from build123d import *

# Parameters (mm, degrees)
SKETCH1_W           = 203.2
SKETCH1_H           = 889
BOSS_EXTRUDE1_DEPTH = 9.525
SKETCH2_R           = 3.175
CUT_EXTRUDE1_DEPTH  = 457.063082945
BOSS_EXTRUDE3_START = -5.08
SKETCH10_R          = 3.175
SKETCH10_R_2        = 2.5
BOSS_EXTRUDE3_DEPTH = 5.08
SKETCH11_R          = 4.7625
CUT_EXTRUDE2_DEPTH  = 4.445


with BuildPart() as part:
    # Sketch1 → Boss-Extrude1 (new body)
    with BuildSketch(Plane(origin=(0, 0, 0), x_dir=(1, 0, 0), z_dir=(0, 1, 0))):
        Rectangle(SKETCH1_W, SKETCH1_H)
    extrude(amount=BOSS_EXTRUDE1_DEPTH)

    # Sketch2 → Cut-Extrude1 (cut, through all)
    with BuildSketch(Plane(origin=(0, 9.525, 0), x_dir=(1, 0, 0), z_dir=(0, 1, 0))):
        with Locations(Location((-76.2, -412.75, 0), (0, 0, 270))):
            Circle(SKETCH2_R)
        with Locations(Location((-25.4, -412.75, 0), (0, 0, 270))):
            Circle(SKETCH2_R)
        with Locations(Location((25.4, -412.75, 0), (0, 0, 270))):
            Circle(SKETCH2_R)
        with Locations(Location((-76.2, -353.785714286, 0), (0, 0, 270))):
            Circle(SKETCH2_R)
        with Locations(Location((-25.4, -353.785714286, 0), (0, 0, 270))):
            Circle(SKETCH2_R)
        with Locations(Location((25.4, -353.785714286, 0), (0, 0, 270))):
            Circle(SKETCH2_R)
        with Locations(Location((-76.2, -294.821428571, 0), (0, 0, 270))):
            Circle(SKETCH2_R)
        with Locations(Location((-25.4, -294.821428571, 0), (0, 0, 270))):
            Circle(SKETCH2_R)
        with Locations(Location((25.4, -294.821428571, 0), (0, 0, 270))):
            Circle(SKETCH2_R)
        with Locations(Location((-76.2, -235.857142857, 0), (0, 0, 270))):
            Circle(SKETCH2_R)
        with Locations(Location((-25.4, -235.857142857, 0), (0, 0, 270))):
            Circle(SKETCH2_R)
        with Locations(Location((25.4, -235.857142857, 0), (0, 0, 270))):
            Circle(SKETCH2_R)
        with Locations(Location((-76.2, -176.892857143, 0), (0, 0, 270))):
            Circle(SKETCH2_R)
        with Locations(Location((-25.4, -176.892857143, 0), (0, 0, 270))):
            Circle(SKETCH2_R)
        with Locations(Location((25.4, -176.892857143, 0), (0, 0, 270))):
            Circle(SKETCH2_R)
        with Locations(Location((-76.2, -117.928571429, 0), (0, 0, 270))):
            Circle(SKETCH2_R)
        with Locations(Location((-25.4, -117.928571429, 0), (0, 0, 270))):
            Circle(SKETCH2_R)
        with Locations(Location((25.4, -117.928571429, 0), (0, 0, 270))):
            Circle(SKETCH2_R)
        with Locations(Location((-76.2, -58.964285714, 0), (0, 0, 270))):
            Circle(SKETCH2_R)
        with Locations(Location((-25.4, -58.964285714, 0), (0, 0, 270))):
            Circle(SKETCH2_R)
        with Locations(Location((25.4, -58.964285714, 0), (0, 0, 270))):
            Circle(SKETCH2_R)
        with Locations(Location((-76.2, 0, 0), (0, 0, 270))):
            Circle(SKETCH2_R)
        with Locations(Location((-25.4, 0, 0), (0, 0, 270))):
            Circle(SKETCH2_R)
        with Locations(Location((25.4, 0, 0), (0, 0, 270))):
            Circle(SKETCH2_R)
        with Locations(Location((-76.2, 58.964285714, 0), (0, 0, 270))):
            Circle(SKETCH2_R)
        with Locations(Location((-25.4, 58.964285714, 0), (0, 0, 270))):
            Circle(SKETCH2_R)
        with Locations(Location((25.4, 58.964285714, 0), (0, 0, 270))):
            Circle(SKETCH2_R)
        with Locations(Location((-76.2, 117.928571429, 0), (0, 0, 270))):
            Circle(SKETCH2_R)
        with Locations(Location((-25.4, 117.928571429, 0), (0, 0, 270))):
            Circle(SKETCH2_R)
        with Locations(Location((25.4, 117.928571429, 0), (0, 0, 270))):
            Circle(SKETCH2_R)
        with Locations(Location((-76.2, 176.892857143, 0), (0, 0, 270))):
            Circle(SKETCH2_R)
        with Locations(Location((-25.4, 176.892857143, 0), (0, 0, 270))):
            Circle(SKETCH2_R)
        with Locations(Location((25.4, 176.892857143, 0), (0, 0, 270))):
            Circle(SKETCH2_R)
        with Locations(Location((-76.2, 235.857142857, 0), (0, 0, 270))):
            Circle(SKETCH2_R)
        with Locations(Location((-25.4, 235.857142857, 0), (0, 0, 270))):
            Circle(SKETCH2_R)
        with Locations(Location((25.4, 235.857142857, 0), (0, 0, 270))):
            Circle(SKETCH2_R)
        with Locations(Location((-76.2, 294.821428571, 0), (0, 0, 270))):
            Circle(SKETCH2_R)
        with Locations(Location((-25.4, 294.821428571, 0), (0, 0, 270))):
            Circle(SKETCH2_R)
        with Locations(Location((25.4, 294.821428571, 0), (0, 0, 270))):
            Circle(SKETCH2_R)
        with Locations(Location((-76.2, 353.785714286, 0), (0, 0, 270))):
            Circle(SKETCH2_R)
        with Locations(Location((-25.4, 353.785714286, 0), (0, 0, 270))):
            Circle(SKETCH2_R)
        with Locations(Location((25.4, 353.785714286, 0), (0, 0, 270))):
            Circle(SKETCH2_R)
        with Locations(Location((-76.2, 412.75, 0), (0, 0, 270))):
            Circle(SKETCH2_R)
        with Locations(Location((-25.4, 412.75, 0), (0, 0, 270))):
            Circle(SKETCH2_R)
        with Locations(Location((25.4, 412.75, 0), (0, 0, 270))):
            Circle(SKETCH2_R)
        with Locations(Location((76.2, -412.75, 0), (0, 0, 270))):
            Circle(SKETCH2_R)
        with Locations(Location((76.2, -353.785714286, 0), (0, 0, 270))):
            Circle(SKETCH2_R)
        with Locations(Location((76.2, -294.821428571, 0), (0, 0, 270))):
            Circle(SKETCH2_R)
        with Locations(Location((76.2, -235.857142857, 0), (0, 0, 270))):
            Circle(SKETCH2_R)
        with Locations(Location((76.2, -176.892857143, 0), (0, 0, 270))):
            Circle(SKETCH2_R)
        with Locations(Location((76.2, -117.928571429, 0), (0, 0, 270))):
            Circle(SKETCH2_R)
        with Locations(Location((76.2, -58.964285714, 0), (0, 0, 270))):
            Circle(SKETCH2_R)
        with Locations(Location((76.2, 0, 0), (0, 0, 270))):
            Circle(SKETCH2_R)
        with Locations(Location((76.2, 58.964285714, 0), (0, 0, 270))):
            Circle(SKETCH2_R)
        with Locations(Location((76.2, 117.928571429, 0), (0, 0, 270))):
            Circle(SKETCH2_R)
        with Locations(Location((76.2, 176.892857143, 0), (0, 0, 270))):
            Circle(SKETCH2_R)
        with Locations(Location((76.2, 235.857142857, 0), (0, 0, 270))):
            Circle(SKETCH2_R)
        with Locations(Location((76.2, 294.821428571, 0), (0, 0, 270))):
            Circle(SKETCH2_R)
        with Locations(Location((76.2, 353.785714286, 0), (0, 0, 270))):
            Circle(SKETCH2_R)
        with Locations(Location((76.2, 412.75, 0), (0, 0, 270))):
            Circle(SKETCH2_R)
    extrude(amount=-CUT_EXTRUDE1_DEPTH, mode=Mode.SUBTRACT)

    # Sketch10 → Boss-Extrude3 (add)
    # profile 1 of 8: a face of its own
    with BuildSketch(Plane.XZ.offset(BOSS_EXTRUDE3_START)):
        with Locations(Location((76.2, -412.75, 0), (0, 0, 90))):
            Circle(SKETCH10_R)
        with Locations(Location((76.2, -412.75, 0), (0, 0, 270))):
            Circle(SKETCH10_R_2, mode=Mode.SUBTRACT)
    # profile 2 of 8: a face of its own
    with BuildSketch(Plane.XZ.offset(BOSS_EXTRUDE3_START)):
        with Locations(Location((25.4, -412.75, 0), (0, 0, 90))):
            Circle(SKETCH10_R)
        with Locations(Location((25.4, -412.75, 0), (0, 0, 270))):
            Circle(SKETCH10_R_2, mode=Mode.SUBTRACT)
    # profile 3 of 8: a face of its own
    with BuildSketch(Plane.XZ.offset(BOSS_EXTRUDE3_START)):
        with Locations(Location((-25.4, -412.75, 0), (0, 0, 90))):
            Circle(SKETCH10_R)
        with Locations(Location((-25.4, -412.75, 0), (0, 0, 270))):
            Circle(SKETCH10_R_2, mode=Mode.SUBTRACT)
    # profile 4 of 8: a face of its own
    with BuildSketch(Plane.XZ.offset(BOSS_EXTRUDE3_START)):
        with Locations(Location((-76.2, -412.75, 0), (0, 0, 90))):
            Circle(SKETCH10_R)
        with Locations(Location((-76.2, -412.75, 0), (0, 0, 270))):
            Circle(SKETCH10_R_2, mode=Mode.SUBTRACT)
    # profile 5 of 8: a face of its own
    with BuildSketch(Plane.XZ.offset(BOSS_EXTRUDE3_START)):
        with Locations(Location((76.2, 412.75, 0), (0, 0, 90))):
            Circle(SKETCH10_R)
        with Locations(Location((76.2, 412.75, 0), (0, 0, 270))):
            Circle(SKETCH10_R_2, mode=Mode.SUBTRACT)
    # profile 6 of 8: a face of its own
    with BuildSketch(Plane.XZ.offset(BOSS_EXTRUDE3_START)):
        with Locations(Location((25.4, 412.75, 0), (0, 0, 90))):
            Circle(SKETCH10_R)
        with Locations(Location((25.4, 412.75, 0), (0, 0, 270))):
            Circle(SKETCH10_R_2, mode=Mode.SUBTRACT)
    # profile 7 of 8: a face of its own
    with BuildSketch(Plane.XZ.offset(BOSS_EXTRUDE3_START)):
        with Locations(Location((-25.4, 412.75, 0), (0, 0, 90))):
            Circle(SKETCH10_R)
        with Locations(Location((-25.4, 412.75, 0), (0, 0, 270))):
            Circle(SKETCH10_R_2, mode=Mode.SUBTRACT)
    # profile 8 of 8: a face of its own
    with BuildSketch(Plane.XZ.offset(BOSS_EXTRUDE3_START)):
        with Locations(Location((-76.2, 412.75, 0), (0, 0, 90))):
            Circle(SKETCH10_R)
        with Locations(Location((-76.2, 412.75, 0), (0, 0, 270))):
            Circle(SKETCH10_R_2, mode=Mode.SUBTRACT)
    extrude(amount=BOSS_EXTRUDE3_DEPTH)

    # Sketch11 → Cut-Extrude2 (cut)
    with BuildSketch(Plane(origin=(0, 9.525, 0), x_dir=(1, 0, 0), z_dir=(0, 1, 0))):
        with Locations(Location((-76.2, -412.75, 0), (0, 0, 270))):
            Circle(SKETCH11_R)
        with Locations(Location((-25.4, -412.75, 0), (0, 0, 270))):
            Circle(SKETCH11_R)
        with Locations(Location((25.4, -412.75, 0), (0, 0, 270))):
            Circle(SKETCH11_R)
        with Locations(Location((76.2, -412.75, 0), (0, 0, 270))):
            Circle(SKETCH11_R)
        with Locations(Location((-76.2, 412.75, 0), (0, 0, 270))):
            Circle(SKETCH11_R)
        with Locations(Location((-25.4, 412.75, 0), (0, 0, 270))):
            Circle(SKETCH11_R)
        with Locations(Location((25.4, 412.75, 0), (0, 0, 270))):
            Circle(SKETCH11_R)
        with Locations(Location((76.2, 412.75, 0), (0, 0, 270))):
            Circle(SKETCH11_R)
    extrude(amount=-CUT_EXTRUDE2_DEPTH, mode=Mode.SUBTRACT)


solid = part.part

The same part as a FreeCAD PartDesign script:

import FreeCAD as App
import Part
import Sketcher
Q = App.Units.Quantity

doc = App.newDocument("Part")
params = doc.addObject("Spreadsheet::Sheet", "Params")
for row, (alias, value) in enumerate([
    ("sketch1_width", "8 in"),
    ("sketch1_height", "35 in"),
    ("pad1_length", "0.375 in"),
    ("sketch2_diameter", "0.25 in"),
    ("sketch3_diameter", "0.25 in"),
    ("pad2_length", "0.2 in"),
    ("sketch4_diameter", "0.375 in"),
    ("pocket2_length", "0.175 in"),
], start=1):
    params.set(f"A{row}", alias)
    params.set(f"B{row}", "=" + value)
    params.setAlias(f"B{row}", alias)

body = doc.addObject("PartDesign::Body", "Body")

# Sketch on XZ plane
sketch1 = body.newObject("Sketcher::SketchObject", "Sketch")
sketch1.AttachmentSupport = (doc.getObject("XZ_Plane"), [""])
sketch1.MapMode = "FlatFace"
sketch1.addGeometry([
    Part.LineSegment(App.Vector(-101.6, -444.5, 0), App.Vector(-101.6, 444.5, 0)),
    Part.LineSegment(App.Vector(-101.6, 444.5, 0), App.Vector(101.6, 444.5, 0)),
    Part.LineSegment(App.Vector(101.6, 444.5, 0), App.Vector(101.6, -444.5, 0)),
    Part.LineSegment(App.Vector(101.6, -444.5, 0), App.Vector(-101.6, -444.5, 0)),
], False)
sketch1.addConstraint([
    Sketcher.Constraint("Coincident", 0, 2, 1, 1),
    Sketcher.Constraint("Coincident", 1, 2, 2, 1),
    Sketcher.Constraint("Coincident", 2, 2, 3, 1),
    Sketcher.Constraint("Coincident", 3, 2, 0, 1),
    Sketcher.Constraint("Vertical", 0),
    Sketcher.Constraint("Horizontal", 1),
    Sketcher.Constraint("Vertical", 2),
    Sketcher.Constraint("Horizontal", 3),
    Sketcher.Constraint("Symmetric", 0, 2, 2, 2, -1, 1),
    Sketcher.Constraint("DistanceX", 1, 1, 1, 2, Q("8 in")),
    Sketcher.Constraint("DistanceY", 0, 1, 0, 2, Q("35 in")),
])
sketch1.setExpression("Constraints[9]", "Params.sketch1_width")
sketch1.setExpression("Constraints[10]", "Params.sketch1_height")
pad1 = body.newObject("PartDesign::Pad", "Pad")
pad1.Profile = sketch1
pad1.setExpression("Length", "Params.pad1_length")
pad1.Reversed = True

# Sketch on XZ plane
sketch2 = body.newObject("Sketcher::SketchObject", "Sketch001")
sketch2.AttachmentSupport = (doc.getObject("XZ_Plane"), [""])
sketch2.MapMode = "FlatFace"
sketch2.AttachmentOffset = App.Placement(App.Vector(0, 0, -0.375 * 25.4), App.Rotation())
sketch2.addGeometry([
    Part.Circle(App.Vector(-76.2, 412.75, 0), App.Vector(0, 0, 1), 3.175),  # 0
    Part.Circle(App.Vector(-25.4, 412.75, 0), App.Vector(0, 0, 1), 3.175),  # 1
    Part.Circle(App.Vector(25.4, 412.75, 0), App.Vector(0, 0, 1), 3.175),  # 2
    Part.Circle(App.Vector(-76.2, 353.785714, 0), App.Vector(0, 0, 1), 3.175),  # 3
    Part.Circle(App.Vector(-25.4, 353.785714, 0), App.Vector(0, 0, 1), 3.175),  # 4
    Part.Circle(App.Vector(25.4, 353.785714, 0), App.Vector(0, 0, 1), 3.175),  # 5
    Part.Circle(App.Vector(-76.2, 294.821429, 0), App.Vector(0, 0, 1), 3.175),  # 6
    Part.Circle(App.Vector(-25.4, 294.821429, 0), App.Vector(0, 0, 1), 3.175),  # 7
    Part.Circle(App.Vector(25.4, 294.821429, 0), App.Vector(0, 0, 1), 3.175),  # 8
    Part.Circle(App.Vector(-76.2, 235.857143, 0), App.Vector(0, 0, 1), 3.175),  # 9
    Part.Circle(App.Vector(-25.4, 235.857143, 0), App.Vector(0, 0, 1), 3.175),  # 10
    Part.Circle(App.Vector(25.4, 235.857143, 0), App.Vector(0, 0, 1), 3.175),  # 11
    Part.Circle(App.Vector(-76.2, 176.892857, 0), App.Vector(0, 0, 1), 3.175),  # 12
    Part.Circle(App.Vector(-25.4, 176.892857, 0), App.Vector(0, 0, 1), 3.175),  # 13
    Part.Circle(App.Vector(25.4, 176.892857, 0), App.Vector(0, 0, 1), 3.175),  # 14
    Part.Circle(App.Vector(-76.2, 117.928571, 0), App.Vector(0, 0, 1), 3.175),  # 15
    Part.Circle(App.Vector(-25.4, 117.928571, 0), App.Vector(0, 0, 1), 3.175),  # 16
    Part.Circle(App.Vector(25.4, 117.928571, 0), App.Vector(0, 0, 1), 3.175),  # 17
    Part.Circle(App.Vector(-76.2, 58.964286, 0), App.Vector(0, 0, 1), 3.175),  # 18
    Part.Circle(App.Vector(-25.4, 58.964286, 0), App.Vector(0, 0, 1), 3.175),  # 19
    Part.Circle(App.Vector(25.4, 58.964286, 0), App.Vector(0, 0, 1), 3.175),  # 20
    Part.Circle(App.Vector(-76.2, 0, 0), App.Vector(0, 0, 1), 3.175),  # 21
    Part.Circle(App.Vector(-25.4, 0, 0), App.Vector(0, 0, 1), 3.175),  # 22
    Part.Circle(App.Vector(25.4, 0, 0), App.Vector(0, 0, 1), 3.175),  # 23
    Part.Circle(App.Vector(-76.2, -58.964286, 0), App.Vector(0, 0, 1), 3.175),  # 24
    Part.Circle(App.Vector(-25.4, -58.964286, 0), App.Vector(0, 0, 1), 3.175),  # 25
    Part.Circle(App.Vector(25.4, -58.964286, 0), App.Vector(0, 0, 1), 3.175),  # 26
    Part.Circle(App.Vector(-76.2, -117.928571, 0), App.Vector(0, 0, 1), 3.175),  # 27
    Part.Circle(App.Vector(-25.4, -117.928571, 0), App.Vector(0, 0, 1), 3.175),  # 28
    Part.Circle(App.Vector(25.4, -117.928571, 0), App.Vector(0, 0, 1), 3.175),  # 29
    Part.Circle(App.Vector(-76.2, -176.892857, 0), App.Vector(0, 0, 1), 3.175),  # 30
    Part.Circle(App.Vector(-25.4, -176.892857, 0), App.Vector(0, 0, 1), 3.175),  # 31
    Part.Circle(App.Vector(25.4, -176.892857, 0), App.Vector(0, 0, 1), 3.175),  # 32
    Part.Circle(App.Vector(-76.2, -235.857143, 0), App.Vector(0, 0, 1), 3.175),  # 33
    Part.Circle(App.Vector(-25.4, -235.857143, 0), App.Vector(0, 0, 1), 3.175),  # 34
    Part.Circle(App.Vector(25.4, -235.857143, 0), App.Vector(0, 0, 1), 3.175),  # 35
    Part.Circle(App.Vector(-76.2, -294.821429, 0), App.Vector(0, 0, 1), 3.175),  # 36
    Part.Circle(App.Vector(-25.4, -294.821429, 0), App.Vector(0, 0, 1), 3.175),  # 37
    Part.Circle(App.Vector(25.4, -294.821429, 0), App.Vector(0, 0, 1), 3.175),  # 38
    Part.Circle(App.Vector(-76.2, -353.785714, 0), App.Vector(0, 0, 1), 3.175),  # 39
    Part.Circle(App.Vector(-25.4, -353.785714, 0), App.Vector(0, 0, 1), 3.175),  # 40
    Part.Circle(App.Vector(25.4, -353.785714, 0), App.Vector(0, 0, 1), 3.175),  # 41
    Part.Circle(App.Vector(-76.2, -412.75, 0), App.Vector(0, 0, 1), 3.175),  # 42
    Part.Circle(App.Vector(-25.4, -412.75, 0), App.Vector(0, 0, 1), 3.175),  # 43
    Part.Circle(App.Vector(25.4, -412.75, 0), App.Vector(0, 0, 1), 3.175),  # 44
    Part.Circle(App.Vector(76.2, 412.75, 0), App.Vector(0, 0, 1), 3.175),  # 45
    Part.Circle(App.Vector(76.2, 353.785714, 0), App.Vector(0, 0, 1), 3.175),  # 46
    Part.Circle(App.Vector(76.2, 294.821429, 0), App.Vector(0, 0, 1), 3.175),  # 47
    Part.Circle(App.Vector(76.2, 235.857143, 0), App.Vector(0, 0, 1), 3.175),  # 48
    Part.Circle(App.Vector(76.2, 176.892857, 0), App.Vector(0, 0, 1), 3.175),  # 49
    Part.Circle(App.Vector(76.2, 117.928571, 0), App.Vector(0, 0, 1), 3.175),  # 50
    Part.Circle(App.Vector(76.2, 58.964286, 0), App.Vector(0, 0, 1), 3.175),  # 51
    Part.Circle(App.Vector(76.2, 0, 0), App.Vector(0, 0, 1), 3.175),  # 52
    Part.Circle(App.Vector(76.2, -58.964286, 0), App.Vector(0, 0, 1), 3.175),  # 53
    Part.Circle(App.Vector(76.2, -117.928571, 0), App.Vector(0, 0, 1), 3.175),  # 54
    Part.Circle(App.Vector(76.2, -176.892857, 0), App.Vector(0, 0, 1), 3.175),  # 55
    Part.Circle(App.Vector(76.2, -235.857143, 0), App.Vector(0, 0, 1), 3.175),  # 56
    Part.Circle(App.Vector(76.2, -294.821429, 0), App.Vector(0, 0, 1), 3.175),  # 57
    Part.Circle(App.Vector(76.2, -353.785714, 0), App.Vector(0, 0, 1), 3.175),  # 58
    Part.Circle(App.Vector(76.2, -412.75, 0), App.Vector(0, 0, 1), 3.175),  # 59
], False)
sketch2.addConstraint([
    Sketcher.Constraint("Equal", 0, 1),
    Sketcher.Constraint("Equal", 1, 2),
    Sketcher.Constraint("Equal", 2, 3),
    Sketcher.Constraint("Equal", 3, 4),
    Sketcher.Constraint("Equal", 4, 5),
    Sketcher.Constraint("Equal", 5, 6),
    Sketcher.Constraint("Equal", 6, 7),
    Sketcher.Constraint("Equal", 7, 8),
    Sketcher.Constraint("Equal", 8, 9),
    Sketcher.Constraint("Equal", 9, 10),
    Sketcher.Constraint("Equal", 10, 11),
    Sketcher.Constraint("Equal", 11, 12),
    Sketcher.Constraint("Equal", 12, 13),
    Sketcher.Constraint("Equal", 13, 14),
    Sketcher.Constraint("Equal", 14, 15),
    Sketcher.Constraint("Equal", 15, 16),
    Sketcher.Constraint("Equal", 16, 17),
    Sketcher.Constraint("Equal", 17, 18),
    Sketcher.Constraint("Equal", 18, 19),
    Sketcher.Constraint("Equal", 19, 20),
    Sketcher.Constraint("Equal", 20, 21),
    Sketcher.Constraint("Equal", 21, 22),
    Sketcher.Constraint("Equal", 22, 23),
    Sketcher.Constraint("Equal", 23, 24),
    Sketcher.Constraint("Equal", 24, 25),
    Sketcher.Constraint("Equal", 25, 26),
    Sketcher.Constraint("Equal", 26, 27),
    Sketcher.Constraint("Equal", 27, 28),
    Sketcher.Constraint("Equal", 28, 29),
    Sketcher.Constraint("Equal", 29, 30),
    Sketcher.Constraint("Equal", 30, 31),
    Sketcher.Constraint("Equal", 31, 32),
    Sketcher.Constraint("Equal", 32, 33),
    Sketcher.Constraint("Equal", 33, 34),
    Sketcher.Constraint("Equal", 34, 35),
    Sketcher.Constraint("Equal", 35, 36),
    Sketcher.Constraint("Equal", 36, 37),
    Sketcher.Constraint("Equal", 37, 38),
    Sketcher.Constraint("Equal", 38, 39),
    Sketcher.Constraint("Equal", 39, 40),
    Sketcher.Constraint("Equal", 40, 41),
    Sketcher.Constraint("Equal", 41, 42),
    Sketcher.Constraint("Equal", 42, 43),
    Sketcher.Constraint("Equal", 43, 44),
    Sketcher.Constraint("Equal", 44, 45),
    Sketcher.Constraint("Equal", 45, 46),
    Sketcher.Constraint("Equal", 46, 47),
    Sketcher.Constraint("Equal", 47, 48),
    Sketcher.Constraint("Equal", 48, 49),
    Sketcher.Constraint("Equal", 49, 50),
    Sketcher.Constraint("Equal", 50, 51),
    Sketcher.Constraint("Equal", 51, 52),
    Sketcher.Constraint("Equal", 52, 53),
    Sketcher.Constraint("Equal", 53, 54),
    Sketcher.Constraint("Equal", 54, 55),
    Sketcher.Constraint("Equal", 55, 56),
    Sketcher.Constraint("Equal", 56, 57),
    Sketcher.Constraint("Equal", 57, 58),
    Sketcher.Constraint("Equal", 58, 59),
    Sketcher.Constraint("Symmetric", 22, 3, 23, 3, -1, 1),
    Sketcher.Constraint("Symmetric", 20, 3, 25, 3, -1, 1),
    Sketcher.Constraint("Symmetric", 19, 3, 26, 3, -1, 1),
    Sketcher.Constraint("Symmetric", 17, 3, 28, 3, -1, 1),
    Sketcher.Constraint("Symmetric", 16, 3, 29, 3, -1, 1),
    Sketcher.Constraint("Symmetric", 14, 3, 31, 3, -1, 1),
    Sketcher.Constraint("Symmetric", 13, 3, 32, 3, -1, 1),
    Sketcher.Constraint("Symmetric", 11, 3, 34, 3, -1, 1),
    Sketcher.Constraint("Symmetric", 10, 3, 35, 3, -1, 1),
    Sketcher.Constraint("Symmetric", 8, 3, 37, 3, -1, 1),
    Sketcher.Constraint("Symmetric", 7, 3, 38, 3, -1, 1),
    Sketcher.Constraint("Symmetric", 5, 3, 40, 3, -1, 1),
    Sketcher.Constraint("Symmetric", 4, 3, 41, 3, -1, 1),
    Sketcher.Constraint("Symmetric", 2, 3, 43, 3, -1, 1),
    Sketcher.Constraint("Symmetric", 1, 3, 44, 3, -1, 1),
    Sketcher.Constraint("Symmetric", 42, 3, 45, 3, -1, 1),
    Sketcher.Constraint("Symmetric", 39, 3, 46, 3, -1, 1),
    Sketcher.Constraint("Symmetric", 36, 3, 47, 3, -1, 1),
    Sketcher.Constraint("Symmetric", 33, 3, 48, 3, -1, 1),
    Sketcher.Constraint("Symmetric", 30, 3, 49, 3, -1, 1),
    Sketcher.Constraint("Symmetric", 27, 3, 50, 3, -1, 1),
    Sketcher.Constraint("Symmetric", 24, 3, 51, 3, -1, 1),
    Sketcher.Constraint("Symmetric", 21, 3, 52, 3, -1, 1),
    Sketcher.Constraint("Symmetric", 18, 3, 53, 3, -1, 1),
    Sketcher.Constraint("Symmetric", 15, 3, 54, 3, -1, 1),
    Sketcher.Constraint("Symmetric", 12, 3, 55, 3, -1, 1),
    Sketcher.Constraint("Symmetric", 9, 3, 56, 3, -1, 1),
    Sketcher.Constraint("Symmetric", 6, 3, 57, 3, -1, 1),
    Sketcher.Constraint("Symmetric", 3, 3, 58, 3, -1, 1),
    Sketcher.Constraint("Symmetric", 0, 3, 59, 3, -1, 1),
    Sketcher.Constraint("Symmetric", 1, 3, 2, 3, -2),
    Sketcher.Constraint("Symmetric", 4, 3, 5, 3, -2),
    Sketcher.Constraint("Symmetric", 7, 3, 8, 3, -2),
    Sketcher.Constraint("Symmetric", 10, 3, 11, 3, -2),
    Sketcher.Constraint("Symmetric", 13, 3, 14, 3, -2),
    Sketcher.Constraint("Symmetric", 16, 3, 17, 3, -2),
    Sketcher.Constraint("Symmetric", 19, 3, 20, 3, -2),
    Sketcher.Constraint("Symmetric", 0, 3, 45, 3, -2),
    Sketcher.Constraint("Symmetric", 3, 3, 46, 3, -2),
    Sketcher.Constraint("Symmetric", 6, 3, 47, 3, -2),
    Sketcher.Constraint("Symmetric", 9, 3, 48, 3, -2),
    Sketcher.Constraint("Symmetric", 12, 3, 49, 3, -2),
    Sketcher.Constraint("Symmetric", 15, 3, 50, 3, -2),
    Sketcher.Constraint("Symmetric", 18, 3, 51, 3, -2),
    Sketcher.Constraint("PointOnObject", 21, 3, -1),
    Sketcher.Constraint("PointOnObject", 22, 3, -1),
    Sketcher.Constraint("Horizontal", 0, 3, 1, 3),
    Sketcher.Constraint("Horizontal", 3, 3, 4, 3),
    Sketcher.Constraint("Horizontal", 6, 3, 7, 3),
    Sketcher.Constraint("Horizontal", 9, 3, 10, 3),
    Sketcher.Constraint("Horizontal", 12, 3, 13, 3),
    Sketcher.Constraint("Horizontal", 15, 3, 16, 3),
    Sketcher.Constraint("Horizontal", 18, 3, 19, 3),
    Sketcher.Constraint("Vertical", 0, 3, 3, 3),
    Sketcher.Constraint("Vertical", 1, 3, 4, 3),
    Sketcher.Constraint("Vertical", 3, 3, 6, 3),
    Sketcher.Constraint("Vertical", 4, 3, 7, 3),
    Sketcher.Constraint("Vertical", 6, 3, 9, 3),
    Sketcher.Constraint("Vertical", 7, 3, 10, 3),
    Sketcher.Constraint("Vertical", 9, 3, 12, 3),
    Sketcher.Constraint("Vertical", 10, 3, 13, 3),
    Sketcher.Constraint("Vertical", 12, 3, 15, 3),
    Sketcher.Constraint("Vertical", 13, 3, 16, 3),
    Sketcher.Constraint("Vertical", 15, 3, 18, 3),
    Sketcher.Constraint("Vertical", 16, 3, 19, 3),
    Sketcher.Constraint("Vertical", 18, 3, 21, 3),
    Sketcher.Constraint("Vertical", 19, 3, 22, 3),
    Sketcher.Constraint("Diameter", 0, Q("0.25 in")),
    Sketcher.Constraint("DistanceX", 0, 3, -1, 1, Q("3 in")),
    Sketcher.Constraint("DistanceX", 1, 3, -1, 1, Q("1 in")),
    Sketcher.Constraint("DistanceY", -1, 1, 0, 3, Q("16.25 in")),
    Sketcher.Constraint("DistanceY", -1, 1, 6, 3, 294.821429),
    Sketcher.Constraint("DistanceY", -1, 1, 15, 3, 117.928571),
    Sketcher.Constraint("DistanceY", 9, 3, 3, 3, 117.928571),
    Sketcher.Constraint("DistanceY", 12, 3, 6, 3, 117.928571),
    Sketcher.Constraint("DistanceY", 15, 3, 9, 3, 117.928571),
    Sketcher.Constraint("DistanceY", 18, 3, 12, 3, 117.928571),
])
sketch2.setExpression("Constraints[126]", "Params.sketch2_diameter")
pocket1 = body.newObject("PartDesign::Pocket", "Pocket")
pocket1.Profile = sketch2
pocket1.Type = "ThroughAll"
pocket1.Reversed = True

# Sketch on XZ plane
sketch3 = body.newObject("Sketcher::SketchObject", "Sketch002")
sketch3.AttachmentSupport = (doc.getObject("XZ_Plane"), [""])
sketch3.MapMode = "FlatFace"
sketch3.AttachmentOffset = App.Placement(App.Vector(0, 0, -0.2 * 25.4), App.Rotation())
sketch3.addGeometry([
    Part.Circle(App.Vector(76.2, -412.75, 0), App.Vector(0, 0, 1), 3.175),  # 0
    Part.Circle(App.Vector(76.2, -412.75, 0), App.Vector(0, 0, 1), 2.5),  # 1
    Part.Circle(App.Vector(25.4, -412.75, 0), App.Vector(0, 0, 1), 3.175),  # 2
    Part.Circle(App.Vector(25.4, -412.75, 0), App.Vector(0, 0, 1), 2.5),  # 3
    Part.Circle(App.Vector(-25.4, -412.75, 0), App.Vector(0, 0, 1), 3.175),  # 4
    Part.Circle(App.Vector(-25.4, -412.75, 0), App.Vector(0, 0, 1), 2.5),  # 5
    Part.Circle(App.Vector(-76.2, -412.75, 0), App.Vector(0, 0, 1), 3.175),  # 6
    Part.Circle(App.Vector(-76.2, -412.75, 0), App.Vector(0, 0, 1), 2.5),  # 7
    Part.Circle(App.Vector(76.2, 412.75, 0), App.Vector(0, 0, 1), 3.175),  # 8
    Part.Circle(App.Vector(76.2, 412.75, 0), App.Vector(0, 0, 1), 2.5),  # 9
    Part.Circle(App.Vector(25.4, 412.75, 0), App.Vector(0, 0, 1), 3.175),  # 10
    Part.Circle(App.Vector(25.4, 412.75, 0), App.Vector(0, 0, 1), 2.5),  # 11
    Part.Circle(App.Vector(-25.4, 412.75, 0), App.Vector(0, 0, 1), 3.175),  # 12
    Part.Circle(App.Vector(-25.4, 412.75, 0), App.Vector(0, 0, 1), 2.5),  # 13
    Part.Circle(App.Vector(-76.2, 412.75, 0), App.Vector(0, 0, 1), 3.175),  # 14
    Part.Circle(App.Vector(-76.2, 412.75, 0), App.Vector(0, 0, 1), 2.5),  # 15
], False)
sketch3.addConstraint([
    Sketcher.Constraint("Coincident", 1, 3, 0, 3),
    Sketcher.Constraint("Coincident", 3, 3, 2, 3),
    Sketcher.Constraint("Coincident", 5, 3, 4, 3),
    Sketcher.Constraint("Coincident", 7, 3, 6, 3),
    Sketcher.Constraint("Coincident", 9, 3, 8, 3),
    Sketcher.Constraint("Coincident", 11, 3, 10, 3),
    Sketcher.Constraint("Coincident", 13, 3, 12, 3),
    Sketcher.Constraint("Coincident", 15, 3, 14, 3),
    Sketcher.Constraint("Equal", 0, 2),
    Sketcher.Constraint("Equal", 1, 3),
    Sketcher.Constraint("Equal", 2, 4),
    Sketcher.Constraint("Equal", 3, 5),
    Sketcher.Constraint("Equal", 4, 6),
    Sketcher.Constraint("Equal", 5, 7),
    Sketcher.Constraint("Equal", 6, 8),
    Sketcher.Constraint("Equal", 7, 9),
    Sketcher.Constraint("Equal", 8, 10),
    Sketcher.Constraint("Equal", 9, 11),
    Sketcher.Constraint("Equal", 10, 12),
    Sketcher.Constraint("Equal", 11, 13),
    Sketcher.Constraint("Equal", 12, 14),
    Sketcher.Constraint("Equal", 13, 15),
    Sketcher.Constraint("Symmetric", 6, 3, 8, 3, -1, 1),
    Sketcher.Constraint("Symmetric", 4, 3, 10, 3, -1, 1),
    Sketcher.Constraint("Symmetric", 2, 3, 12, 3, -1, 1),
    Sketcher.Constraint("Symmetric", 0, 3, 14, 3, -1, 1),
    Sketcher.Constraint("Symmetric", 2, 3, 4, 3, -2),
    Sketcher.Constraint("Symmetric", 0, 3, 6, 3, -2),
    Sketcher.Constraint("Horizontal", 1, 3, 2, 3),
    Sketcher.Constraint("Diameter", 0, Q("0.25 in")),
    Sketcher.Constraint("DistanceX", -1, 1, 0, 3, Q("3 in")),
    Sketcher.Constraint("DistanceX", -1, 1, 2, 3, Q("1 in")),
    Sketcher.Constraint("DistanceY", 0, 3, 8, 3, Q("32.5 in")),
    Sketcher.Constraint("Diameter", 1, 5.0),
])
sketch3.setExpression("Constraints[29]", "Params.sketch3_diameter")
pad2 = body.newObject("PartDesign::Pad", "Pad001")
pad2.Profile = sketch3
pad2.setExpression("Length", "Params.pad2_length")

# Sketch on XZ plane
sketch4 = body.newObject("Sketcher::SketchObject", "Sketch003")
sketch4.AttachmentSupport = (doc.getObject("XZ_Plane"), [""])
sketch4.MapMode = "FlatFace"
sketch4.AttachmentOffset = App.Placement(App.Vector(0, 0, -0.375 * 25.4), App.Rotation())
sketch4.addGeometry([
    Part.Circle(App.Vector(-76.2, 412.75, 0), App.Vector(0, 0, 1), 4.7625),  # 0
    Part.Circle(App.Vector(-25.4, 412.75, 0), App.Vector(0, 0, 1), 4.7625),  # 1
    Part.Circle(App.Vector(25.4, 412.75, 0), App.Vector(0, 0, 1), 4.7625),  # 2
    Part.Circle(App.Vector(76.2, 412.75, 0), App.Vector(0, 0, 1), 4.7625),  # 3
    Part.Circle(App.Vector(-76.2, -412.75, 0), App.Vector(0, 0, 1), 4.7625),  # 4
    Part.Circle(App.Vector(-25.4, -412.75, 0), App.Vector(0, 0, 1), 4.7625),  # 5
    Part.Circle(App.Vector(25.4, -412.75, 0), App.Vector(0, 0, 1), 4.7625),  # 6
    Part.Circle(App.Vector(76.2, -412.75, 0), App.Vector(0, 0, 1), 4.7625),  # 7
], False)
sketch4.addConstraint([
    Sketcher.Constraint("Equal", 0, 1),
    Sketcher.Constraint("Equal", 1, 2),
    Sketcher.Constraint("Equal", 2, 3),
    Sketcher.Constraint("Equal", 3, 4),
    Sketcher.Constraint("Equal", 4, 5),
    Sketcher.Constraint("Equal", 5, 6),
    Sketcher.Constraint("Equal", 6, 7),
    Sketcher.Constraint("Symmetric", 3, 3, 4, 3, -1, 1),
    Sketcher.Constraint("Symmetric", 2, 3, 5, 3, -1, 1),
    Sketcher.Constraint("Symmetric", 1, 3, 6, 3, -1, 1),
    Sketcher.Constraint("Symmetric", 0, 3, 7, 3, -1, 1),
    Sketcher.Constraint("Symmetric", 1, 3, 2, 3, -2),
    Sketcher.Constraint("Symmetric", 0, 3, 3, 3, -2),
    Sketcher.Constraint("Horizontal", 0, 3, 1, 3),
    Sketcher.Constraint("Diameter", 0, Q("0.375 in")),
    Sketcher.Constraint("DistanceX", 0, 3, -1, 1, Q("3 in")),
    Sketcher.Constraint("DistanceX", 1, 3, -1, 1, Q("1 in")),
    Sketcher.Constraint("DistanceY", 4, 3, 0, 3, Q("32.5 in")),
])
sketch4.setExpression("Constraints[14]", "Params.sketch4_diameter")
pocket2 = body.newObject("PartDesign::Pocket", "Pocket001")
pocket2.Profile = sketch4
pocket2.setExpression("Length", "Params.pocket2_length")
pocket2.Reversed = True

doc.recompute()
